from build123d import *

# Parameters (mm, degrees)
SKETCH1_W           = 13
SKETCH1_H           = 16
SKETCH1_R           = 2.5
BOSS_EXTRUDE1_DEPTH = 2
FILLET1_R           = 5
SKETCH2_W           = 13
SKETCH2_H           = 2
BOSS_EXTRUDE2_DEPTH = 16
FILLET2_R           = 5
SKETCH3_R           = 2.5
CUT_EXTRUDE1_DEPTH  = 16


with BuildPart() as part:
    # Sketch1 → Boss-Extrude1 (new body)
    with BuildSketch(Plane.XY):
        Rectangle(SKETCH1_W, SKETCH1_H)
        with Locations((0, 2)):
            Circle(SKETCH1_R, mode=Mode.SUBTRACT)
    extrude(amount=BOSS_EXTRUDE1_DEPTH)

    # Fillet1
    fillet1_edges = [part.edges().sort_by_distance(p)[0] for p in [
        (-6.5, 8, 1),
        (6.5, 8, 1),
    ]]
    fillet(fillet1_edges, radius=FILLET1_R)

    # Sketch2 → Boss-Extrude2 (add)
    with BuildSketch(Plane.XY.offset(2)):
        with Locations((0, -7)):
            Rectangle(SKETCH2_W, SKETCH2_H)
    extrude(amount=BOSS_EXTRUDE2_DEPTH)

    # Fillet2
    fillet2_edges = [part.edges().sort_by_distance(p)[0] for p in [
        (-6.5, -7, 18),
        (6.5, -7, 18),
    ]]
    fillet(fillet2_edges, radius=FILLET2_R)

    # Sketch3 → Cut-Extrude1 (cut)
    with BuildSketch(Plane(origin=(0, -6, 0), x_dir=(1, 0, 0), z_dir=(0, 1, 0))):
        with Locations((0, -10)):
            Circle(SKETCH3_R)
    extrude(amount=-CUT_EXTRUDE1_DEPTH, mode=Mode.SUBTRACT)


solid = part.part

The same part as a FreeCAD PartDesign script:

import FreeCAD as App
import Part
import Sketcher

V = App.Vector


def edges_at(feature, points):
    """Names of the edges that pass closest to the given points."""
    edges = feature.Shape.Edges
    near = lambda p: min(range(len(edges)), key=lambda i: edges[i].distToShape(Part.Vertex(*p))[0])
    return sorted({f"Edge{near(p) + 1}" for p in points})

doc = App.newDocument("Part")
body = doc.addObject("PartDesign::Body", "Body")

# Sketch on XY plane
sketch1 = body.newObject("Sketcher::SketchObject", "Sketch")
sketch1.AttachmentSupport = (doc.getObject("XY_Plane"), [""])
sketch1.MapMode = "FlatFace"
sketch1.addGeometry([
    Part.LineSegment(V(-6.5, 8, 0), V(-6.5, -8, 0)),  # 0
    Part.LineSegment(V(-6.5, -8, 0), V(6.5, -8, 0)),  # 1
    Part.LineSegment(V(6.5, -8, 0), V(6.5, 8, 0)),  # 2
    Part.LineSegment(V(6.5, 8, 0), V(-6.5, 8, 0)),  # 3
    Part.Circle(V(0, 2, 0), V(0, 0, 1), 2.5),  # 4
], False)
sketch1.addConstraint([
    Sketcher.Constraint("Coincident", 0, 2, 1, 1),
    Sketcher.Constraint("Coincident", 1, 2, 2, 1),
    Sketcher.Constraint("Coincident", 2, 2, 3, 1),
    Sketcher.Constraint("Coincident", 3, 2, 0, 1),
    Sketcher.Constraint("Vertical", 0),
    Sketcher.Constraint("Horizontal", 1),
    Sketcher.Constraint("Vertical", 2),
    Sketcher.Constraint("Horizontal", 3),
    Sketcher.Constraint("Symmetric", 0, 2, 2, 2, -1, 1),
    Sketcher.Constraint("PointOnObject", 4, 3, -2),
    Sketcher.Constraint("Diameter", 4, 5.0),
    Sketcher.Constraint("DistanceX", 1, 1, 1, 2, 13.0),
    Sketcher.Constraint("DistanceY", 0, 2, 0, 1, 16.0),
    Sketcher.Constraint("DistanceY", -1, 1, 4, 3, 2.0),
])
pad1 = body.newObject("PartDesign::Pad", "Pad")
pad1.Profile = sketch1
pad1.Length = 2
doc.recompute()

fillet = body.newObject("PartDesign::Fillet", "Fillet")
fillet.Base = (pad1, edges_at(pad1, [(-6.5, 8, 1), (6.5, 8, 1)]))
fillet.Radius = 5

# Sketch on XY plane
sketch2 = body.newObject("Sketcher::SketchObject", "Sketch001")
sketch2.AttachmentSupport = (doc.getObject("XY_Plane"), [""])
sketch2.MapMode = "FlatFace"
sketch2.AttachmentOffset = App.Placement(V(0, 0, 2), App.Rotation())
sketch2.addGeometry([
    Part.LineSegment(V(-6.5, -6, 0), V(-6.5, -8, 0)),
    Part.LineSegment(V(-6.5, -8, 0), V(6.5, -8, 0)),
    Part.LineSegment(V(6.5, -8, 0), V(6.5, -6, 0)),
    Part.LineSegment(V(6.5, -6, 0), V(-6.5, -6, 0)),
], False)
sketch2.addConstraint([
    Sketcher.Constraint("Coincident", 0, 2, 1, 1),
    Sketcher.Constraint("Coincident", 1, 2, 2, 1),
    Sketcher.Constraint("Coincident", 2, 2, 3, 1),
    Sketcher.Constraint("Coincident", 3, 2, 0, 1),
    Sketcher.Constraint("Vertical", 0),
    Sketcher.Constraint("Horizontal", 1),
    Sketcher.Constraint("Vertical", 2),
    Sketcher.Constraint("Horizontal", 3),
    Sketcher.Constraint("DistanceX", 1, 1, 1, 2, 13.0),
    Sketcher.Constraint("DistanceY", 0, 2, 0, 1, 2.0),
    Sketcher.Constraint("DistanceY", 0, 2, -1, 1, 8.0),
    Sketcher.Constraint("DistanceX", 0, 2, -1, 1, 6.5),
])
pad2 = body.newObject("PartDesign::Pad", "Pad001")
pad2.Profile = sketch2
pad2.Length = 16
doc.recompute()

fillet2 = body.newObject("PartDesign::Fillet", "Fillet001")
fillet2.Base = (pad2, edges_at(pad2, [(-6.5, -7, 18), (6.5, -7, 18)]))
fillet2.Radius = 5

# Sketch on XZ plane
sketch3 = body.newObject("Sketcher::SketchObject", "Sketch002")
sketch3.AttachmentSupport = (doc.getObject("XZ_Plane"), [""])
sketch3.MapMode = "FlatFace"
sketch3.AttachmentOffset = App.Placement(V(0, 0, 6), App.Rotation())
sketch3.addGeometry(Part.Circle(V(0, 10, 0), V(0, 0, 1), 2.5), False)
sketch3.addConstraint([
    Sketcher.Constraint("PointOnObject", 0, 3, -2),
    Sketcher.Constraint("Diameter", 0, 5.0),
    Sketcher.Constraint("DistanceY", -1, 1, 0, 3, 10.0),
])
pocket1 = body.newObject("PartDesign::Pocket", "Pocket")
pocket1.Profile = sketch3
pocket1.Length = 16
pocket1.Reversed = True

doc.recompute()
